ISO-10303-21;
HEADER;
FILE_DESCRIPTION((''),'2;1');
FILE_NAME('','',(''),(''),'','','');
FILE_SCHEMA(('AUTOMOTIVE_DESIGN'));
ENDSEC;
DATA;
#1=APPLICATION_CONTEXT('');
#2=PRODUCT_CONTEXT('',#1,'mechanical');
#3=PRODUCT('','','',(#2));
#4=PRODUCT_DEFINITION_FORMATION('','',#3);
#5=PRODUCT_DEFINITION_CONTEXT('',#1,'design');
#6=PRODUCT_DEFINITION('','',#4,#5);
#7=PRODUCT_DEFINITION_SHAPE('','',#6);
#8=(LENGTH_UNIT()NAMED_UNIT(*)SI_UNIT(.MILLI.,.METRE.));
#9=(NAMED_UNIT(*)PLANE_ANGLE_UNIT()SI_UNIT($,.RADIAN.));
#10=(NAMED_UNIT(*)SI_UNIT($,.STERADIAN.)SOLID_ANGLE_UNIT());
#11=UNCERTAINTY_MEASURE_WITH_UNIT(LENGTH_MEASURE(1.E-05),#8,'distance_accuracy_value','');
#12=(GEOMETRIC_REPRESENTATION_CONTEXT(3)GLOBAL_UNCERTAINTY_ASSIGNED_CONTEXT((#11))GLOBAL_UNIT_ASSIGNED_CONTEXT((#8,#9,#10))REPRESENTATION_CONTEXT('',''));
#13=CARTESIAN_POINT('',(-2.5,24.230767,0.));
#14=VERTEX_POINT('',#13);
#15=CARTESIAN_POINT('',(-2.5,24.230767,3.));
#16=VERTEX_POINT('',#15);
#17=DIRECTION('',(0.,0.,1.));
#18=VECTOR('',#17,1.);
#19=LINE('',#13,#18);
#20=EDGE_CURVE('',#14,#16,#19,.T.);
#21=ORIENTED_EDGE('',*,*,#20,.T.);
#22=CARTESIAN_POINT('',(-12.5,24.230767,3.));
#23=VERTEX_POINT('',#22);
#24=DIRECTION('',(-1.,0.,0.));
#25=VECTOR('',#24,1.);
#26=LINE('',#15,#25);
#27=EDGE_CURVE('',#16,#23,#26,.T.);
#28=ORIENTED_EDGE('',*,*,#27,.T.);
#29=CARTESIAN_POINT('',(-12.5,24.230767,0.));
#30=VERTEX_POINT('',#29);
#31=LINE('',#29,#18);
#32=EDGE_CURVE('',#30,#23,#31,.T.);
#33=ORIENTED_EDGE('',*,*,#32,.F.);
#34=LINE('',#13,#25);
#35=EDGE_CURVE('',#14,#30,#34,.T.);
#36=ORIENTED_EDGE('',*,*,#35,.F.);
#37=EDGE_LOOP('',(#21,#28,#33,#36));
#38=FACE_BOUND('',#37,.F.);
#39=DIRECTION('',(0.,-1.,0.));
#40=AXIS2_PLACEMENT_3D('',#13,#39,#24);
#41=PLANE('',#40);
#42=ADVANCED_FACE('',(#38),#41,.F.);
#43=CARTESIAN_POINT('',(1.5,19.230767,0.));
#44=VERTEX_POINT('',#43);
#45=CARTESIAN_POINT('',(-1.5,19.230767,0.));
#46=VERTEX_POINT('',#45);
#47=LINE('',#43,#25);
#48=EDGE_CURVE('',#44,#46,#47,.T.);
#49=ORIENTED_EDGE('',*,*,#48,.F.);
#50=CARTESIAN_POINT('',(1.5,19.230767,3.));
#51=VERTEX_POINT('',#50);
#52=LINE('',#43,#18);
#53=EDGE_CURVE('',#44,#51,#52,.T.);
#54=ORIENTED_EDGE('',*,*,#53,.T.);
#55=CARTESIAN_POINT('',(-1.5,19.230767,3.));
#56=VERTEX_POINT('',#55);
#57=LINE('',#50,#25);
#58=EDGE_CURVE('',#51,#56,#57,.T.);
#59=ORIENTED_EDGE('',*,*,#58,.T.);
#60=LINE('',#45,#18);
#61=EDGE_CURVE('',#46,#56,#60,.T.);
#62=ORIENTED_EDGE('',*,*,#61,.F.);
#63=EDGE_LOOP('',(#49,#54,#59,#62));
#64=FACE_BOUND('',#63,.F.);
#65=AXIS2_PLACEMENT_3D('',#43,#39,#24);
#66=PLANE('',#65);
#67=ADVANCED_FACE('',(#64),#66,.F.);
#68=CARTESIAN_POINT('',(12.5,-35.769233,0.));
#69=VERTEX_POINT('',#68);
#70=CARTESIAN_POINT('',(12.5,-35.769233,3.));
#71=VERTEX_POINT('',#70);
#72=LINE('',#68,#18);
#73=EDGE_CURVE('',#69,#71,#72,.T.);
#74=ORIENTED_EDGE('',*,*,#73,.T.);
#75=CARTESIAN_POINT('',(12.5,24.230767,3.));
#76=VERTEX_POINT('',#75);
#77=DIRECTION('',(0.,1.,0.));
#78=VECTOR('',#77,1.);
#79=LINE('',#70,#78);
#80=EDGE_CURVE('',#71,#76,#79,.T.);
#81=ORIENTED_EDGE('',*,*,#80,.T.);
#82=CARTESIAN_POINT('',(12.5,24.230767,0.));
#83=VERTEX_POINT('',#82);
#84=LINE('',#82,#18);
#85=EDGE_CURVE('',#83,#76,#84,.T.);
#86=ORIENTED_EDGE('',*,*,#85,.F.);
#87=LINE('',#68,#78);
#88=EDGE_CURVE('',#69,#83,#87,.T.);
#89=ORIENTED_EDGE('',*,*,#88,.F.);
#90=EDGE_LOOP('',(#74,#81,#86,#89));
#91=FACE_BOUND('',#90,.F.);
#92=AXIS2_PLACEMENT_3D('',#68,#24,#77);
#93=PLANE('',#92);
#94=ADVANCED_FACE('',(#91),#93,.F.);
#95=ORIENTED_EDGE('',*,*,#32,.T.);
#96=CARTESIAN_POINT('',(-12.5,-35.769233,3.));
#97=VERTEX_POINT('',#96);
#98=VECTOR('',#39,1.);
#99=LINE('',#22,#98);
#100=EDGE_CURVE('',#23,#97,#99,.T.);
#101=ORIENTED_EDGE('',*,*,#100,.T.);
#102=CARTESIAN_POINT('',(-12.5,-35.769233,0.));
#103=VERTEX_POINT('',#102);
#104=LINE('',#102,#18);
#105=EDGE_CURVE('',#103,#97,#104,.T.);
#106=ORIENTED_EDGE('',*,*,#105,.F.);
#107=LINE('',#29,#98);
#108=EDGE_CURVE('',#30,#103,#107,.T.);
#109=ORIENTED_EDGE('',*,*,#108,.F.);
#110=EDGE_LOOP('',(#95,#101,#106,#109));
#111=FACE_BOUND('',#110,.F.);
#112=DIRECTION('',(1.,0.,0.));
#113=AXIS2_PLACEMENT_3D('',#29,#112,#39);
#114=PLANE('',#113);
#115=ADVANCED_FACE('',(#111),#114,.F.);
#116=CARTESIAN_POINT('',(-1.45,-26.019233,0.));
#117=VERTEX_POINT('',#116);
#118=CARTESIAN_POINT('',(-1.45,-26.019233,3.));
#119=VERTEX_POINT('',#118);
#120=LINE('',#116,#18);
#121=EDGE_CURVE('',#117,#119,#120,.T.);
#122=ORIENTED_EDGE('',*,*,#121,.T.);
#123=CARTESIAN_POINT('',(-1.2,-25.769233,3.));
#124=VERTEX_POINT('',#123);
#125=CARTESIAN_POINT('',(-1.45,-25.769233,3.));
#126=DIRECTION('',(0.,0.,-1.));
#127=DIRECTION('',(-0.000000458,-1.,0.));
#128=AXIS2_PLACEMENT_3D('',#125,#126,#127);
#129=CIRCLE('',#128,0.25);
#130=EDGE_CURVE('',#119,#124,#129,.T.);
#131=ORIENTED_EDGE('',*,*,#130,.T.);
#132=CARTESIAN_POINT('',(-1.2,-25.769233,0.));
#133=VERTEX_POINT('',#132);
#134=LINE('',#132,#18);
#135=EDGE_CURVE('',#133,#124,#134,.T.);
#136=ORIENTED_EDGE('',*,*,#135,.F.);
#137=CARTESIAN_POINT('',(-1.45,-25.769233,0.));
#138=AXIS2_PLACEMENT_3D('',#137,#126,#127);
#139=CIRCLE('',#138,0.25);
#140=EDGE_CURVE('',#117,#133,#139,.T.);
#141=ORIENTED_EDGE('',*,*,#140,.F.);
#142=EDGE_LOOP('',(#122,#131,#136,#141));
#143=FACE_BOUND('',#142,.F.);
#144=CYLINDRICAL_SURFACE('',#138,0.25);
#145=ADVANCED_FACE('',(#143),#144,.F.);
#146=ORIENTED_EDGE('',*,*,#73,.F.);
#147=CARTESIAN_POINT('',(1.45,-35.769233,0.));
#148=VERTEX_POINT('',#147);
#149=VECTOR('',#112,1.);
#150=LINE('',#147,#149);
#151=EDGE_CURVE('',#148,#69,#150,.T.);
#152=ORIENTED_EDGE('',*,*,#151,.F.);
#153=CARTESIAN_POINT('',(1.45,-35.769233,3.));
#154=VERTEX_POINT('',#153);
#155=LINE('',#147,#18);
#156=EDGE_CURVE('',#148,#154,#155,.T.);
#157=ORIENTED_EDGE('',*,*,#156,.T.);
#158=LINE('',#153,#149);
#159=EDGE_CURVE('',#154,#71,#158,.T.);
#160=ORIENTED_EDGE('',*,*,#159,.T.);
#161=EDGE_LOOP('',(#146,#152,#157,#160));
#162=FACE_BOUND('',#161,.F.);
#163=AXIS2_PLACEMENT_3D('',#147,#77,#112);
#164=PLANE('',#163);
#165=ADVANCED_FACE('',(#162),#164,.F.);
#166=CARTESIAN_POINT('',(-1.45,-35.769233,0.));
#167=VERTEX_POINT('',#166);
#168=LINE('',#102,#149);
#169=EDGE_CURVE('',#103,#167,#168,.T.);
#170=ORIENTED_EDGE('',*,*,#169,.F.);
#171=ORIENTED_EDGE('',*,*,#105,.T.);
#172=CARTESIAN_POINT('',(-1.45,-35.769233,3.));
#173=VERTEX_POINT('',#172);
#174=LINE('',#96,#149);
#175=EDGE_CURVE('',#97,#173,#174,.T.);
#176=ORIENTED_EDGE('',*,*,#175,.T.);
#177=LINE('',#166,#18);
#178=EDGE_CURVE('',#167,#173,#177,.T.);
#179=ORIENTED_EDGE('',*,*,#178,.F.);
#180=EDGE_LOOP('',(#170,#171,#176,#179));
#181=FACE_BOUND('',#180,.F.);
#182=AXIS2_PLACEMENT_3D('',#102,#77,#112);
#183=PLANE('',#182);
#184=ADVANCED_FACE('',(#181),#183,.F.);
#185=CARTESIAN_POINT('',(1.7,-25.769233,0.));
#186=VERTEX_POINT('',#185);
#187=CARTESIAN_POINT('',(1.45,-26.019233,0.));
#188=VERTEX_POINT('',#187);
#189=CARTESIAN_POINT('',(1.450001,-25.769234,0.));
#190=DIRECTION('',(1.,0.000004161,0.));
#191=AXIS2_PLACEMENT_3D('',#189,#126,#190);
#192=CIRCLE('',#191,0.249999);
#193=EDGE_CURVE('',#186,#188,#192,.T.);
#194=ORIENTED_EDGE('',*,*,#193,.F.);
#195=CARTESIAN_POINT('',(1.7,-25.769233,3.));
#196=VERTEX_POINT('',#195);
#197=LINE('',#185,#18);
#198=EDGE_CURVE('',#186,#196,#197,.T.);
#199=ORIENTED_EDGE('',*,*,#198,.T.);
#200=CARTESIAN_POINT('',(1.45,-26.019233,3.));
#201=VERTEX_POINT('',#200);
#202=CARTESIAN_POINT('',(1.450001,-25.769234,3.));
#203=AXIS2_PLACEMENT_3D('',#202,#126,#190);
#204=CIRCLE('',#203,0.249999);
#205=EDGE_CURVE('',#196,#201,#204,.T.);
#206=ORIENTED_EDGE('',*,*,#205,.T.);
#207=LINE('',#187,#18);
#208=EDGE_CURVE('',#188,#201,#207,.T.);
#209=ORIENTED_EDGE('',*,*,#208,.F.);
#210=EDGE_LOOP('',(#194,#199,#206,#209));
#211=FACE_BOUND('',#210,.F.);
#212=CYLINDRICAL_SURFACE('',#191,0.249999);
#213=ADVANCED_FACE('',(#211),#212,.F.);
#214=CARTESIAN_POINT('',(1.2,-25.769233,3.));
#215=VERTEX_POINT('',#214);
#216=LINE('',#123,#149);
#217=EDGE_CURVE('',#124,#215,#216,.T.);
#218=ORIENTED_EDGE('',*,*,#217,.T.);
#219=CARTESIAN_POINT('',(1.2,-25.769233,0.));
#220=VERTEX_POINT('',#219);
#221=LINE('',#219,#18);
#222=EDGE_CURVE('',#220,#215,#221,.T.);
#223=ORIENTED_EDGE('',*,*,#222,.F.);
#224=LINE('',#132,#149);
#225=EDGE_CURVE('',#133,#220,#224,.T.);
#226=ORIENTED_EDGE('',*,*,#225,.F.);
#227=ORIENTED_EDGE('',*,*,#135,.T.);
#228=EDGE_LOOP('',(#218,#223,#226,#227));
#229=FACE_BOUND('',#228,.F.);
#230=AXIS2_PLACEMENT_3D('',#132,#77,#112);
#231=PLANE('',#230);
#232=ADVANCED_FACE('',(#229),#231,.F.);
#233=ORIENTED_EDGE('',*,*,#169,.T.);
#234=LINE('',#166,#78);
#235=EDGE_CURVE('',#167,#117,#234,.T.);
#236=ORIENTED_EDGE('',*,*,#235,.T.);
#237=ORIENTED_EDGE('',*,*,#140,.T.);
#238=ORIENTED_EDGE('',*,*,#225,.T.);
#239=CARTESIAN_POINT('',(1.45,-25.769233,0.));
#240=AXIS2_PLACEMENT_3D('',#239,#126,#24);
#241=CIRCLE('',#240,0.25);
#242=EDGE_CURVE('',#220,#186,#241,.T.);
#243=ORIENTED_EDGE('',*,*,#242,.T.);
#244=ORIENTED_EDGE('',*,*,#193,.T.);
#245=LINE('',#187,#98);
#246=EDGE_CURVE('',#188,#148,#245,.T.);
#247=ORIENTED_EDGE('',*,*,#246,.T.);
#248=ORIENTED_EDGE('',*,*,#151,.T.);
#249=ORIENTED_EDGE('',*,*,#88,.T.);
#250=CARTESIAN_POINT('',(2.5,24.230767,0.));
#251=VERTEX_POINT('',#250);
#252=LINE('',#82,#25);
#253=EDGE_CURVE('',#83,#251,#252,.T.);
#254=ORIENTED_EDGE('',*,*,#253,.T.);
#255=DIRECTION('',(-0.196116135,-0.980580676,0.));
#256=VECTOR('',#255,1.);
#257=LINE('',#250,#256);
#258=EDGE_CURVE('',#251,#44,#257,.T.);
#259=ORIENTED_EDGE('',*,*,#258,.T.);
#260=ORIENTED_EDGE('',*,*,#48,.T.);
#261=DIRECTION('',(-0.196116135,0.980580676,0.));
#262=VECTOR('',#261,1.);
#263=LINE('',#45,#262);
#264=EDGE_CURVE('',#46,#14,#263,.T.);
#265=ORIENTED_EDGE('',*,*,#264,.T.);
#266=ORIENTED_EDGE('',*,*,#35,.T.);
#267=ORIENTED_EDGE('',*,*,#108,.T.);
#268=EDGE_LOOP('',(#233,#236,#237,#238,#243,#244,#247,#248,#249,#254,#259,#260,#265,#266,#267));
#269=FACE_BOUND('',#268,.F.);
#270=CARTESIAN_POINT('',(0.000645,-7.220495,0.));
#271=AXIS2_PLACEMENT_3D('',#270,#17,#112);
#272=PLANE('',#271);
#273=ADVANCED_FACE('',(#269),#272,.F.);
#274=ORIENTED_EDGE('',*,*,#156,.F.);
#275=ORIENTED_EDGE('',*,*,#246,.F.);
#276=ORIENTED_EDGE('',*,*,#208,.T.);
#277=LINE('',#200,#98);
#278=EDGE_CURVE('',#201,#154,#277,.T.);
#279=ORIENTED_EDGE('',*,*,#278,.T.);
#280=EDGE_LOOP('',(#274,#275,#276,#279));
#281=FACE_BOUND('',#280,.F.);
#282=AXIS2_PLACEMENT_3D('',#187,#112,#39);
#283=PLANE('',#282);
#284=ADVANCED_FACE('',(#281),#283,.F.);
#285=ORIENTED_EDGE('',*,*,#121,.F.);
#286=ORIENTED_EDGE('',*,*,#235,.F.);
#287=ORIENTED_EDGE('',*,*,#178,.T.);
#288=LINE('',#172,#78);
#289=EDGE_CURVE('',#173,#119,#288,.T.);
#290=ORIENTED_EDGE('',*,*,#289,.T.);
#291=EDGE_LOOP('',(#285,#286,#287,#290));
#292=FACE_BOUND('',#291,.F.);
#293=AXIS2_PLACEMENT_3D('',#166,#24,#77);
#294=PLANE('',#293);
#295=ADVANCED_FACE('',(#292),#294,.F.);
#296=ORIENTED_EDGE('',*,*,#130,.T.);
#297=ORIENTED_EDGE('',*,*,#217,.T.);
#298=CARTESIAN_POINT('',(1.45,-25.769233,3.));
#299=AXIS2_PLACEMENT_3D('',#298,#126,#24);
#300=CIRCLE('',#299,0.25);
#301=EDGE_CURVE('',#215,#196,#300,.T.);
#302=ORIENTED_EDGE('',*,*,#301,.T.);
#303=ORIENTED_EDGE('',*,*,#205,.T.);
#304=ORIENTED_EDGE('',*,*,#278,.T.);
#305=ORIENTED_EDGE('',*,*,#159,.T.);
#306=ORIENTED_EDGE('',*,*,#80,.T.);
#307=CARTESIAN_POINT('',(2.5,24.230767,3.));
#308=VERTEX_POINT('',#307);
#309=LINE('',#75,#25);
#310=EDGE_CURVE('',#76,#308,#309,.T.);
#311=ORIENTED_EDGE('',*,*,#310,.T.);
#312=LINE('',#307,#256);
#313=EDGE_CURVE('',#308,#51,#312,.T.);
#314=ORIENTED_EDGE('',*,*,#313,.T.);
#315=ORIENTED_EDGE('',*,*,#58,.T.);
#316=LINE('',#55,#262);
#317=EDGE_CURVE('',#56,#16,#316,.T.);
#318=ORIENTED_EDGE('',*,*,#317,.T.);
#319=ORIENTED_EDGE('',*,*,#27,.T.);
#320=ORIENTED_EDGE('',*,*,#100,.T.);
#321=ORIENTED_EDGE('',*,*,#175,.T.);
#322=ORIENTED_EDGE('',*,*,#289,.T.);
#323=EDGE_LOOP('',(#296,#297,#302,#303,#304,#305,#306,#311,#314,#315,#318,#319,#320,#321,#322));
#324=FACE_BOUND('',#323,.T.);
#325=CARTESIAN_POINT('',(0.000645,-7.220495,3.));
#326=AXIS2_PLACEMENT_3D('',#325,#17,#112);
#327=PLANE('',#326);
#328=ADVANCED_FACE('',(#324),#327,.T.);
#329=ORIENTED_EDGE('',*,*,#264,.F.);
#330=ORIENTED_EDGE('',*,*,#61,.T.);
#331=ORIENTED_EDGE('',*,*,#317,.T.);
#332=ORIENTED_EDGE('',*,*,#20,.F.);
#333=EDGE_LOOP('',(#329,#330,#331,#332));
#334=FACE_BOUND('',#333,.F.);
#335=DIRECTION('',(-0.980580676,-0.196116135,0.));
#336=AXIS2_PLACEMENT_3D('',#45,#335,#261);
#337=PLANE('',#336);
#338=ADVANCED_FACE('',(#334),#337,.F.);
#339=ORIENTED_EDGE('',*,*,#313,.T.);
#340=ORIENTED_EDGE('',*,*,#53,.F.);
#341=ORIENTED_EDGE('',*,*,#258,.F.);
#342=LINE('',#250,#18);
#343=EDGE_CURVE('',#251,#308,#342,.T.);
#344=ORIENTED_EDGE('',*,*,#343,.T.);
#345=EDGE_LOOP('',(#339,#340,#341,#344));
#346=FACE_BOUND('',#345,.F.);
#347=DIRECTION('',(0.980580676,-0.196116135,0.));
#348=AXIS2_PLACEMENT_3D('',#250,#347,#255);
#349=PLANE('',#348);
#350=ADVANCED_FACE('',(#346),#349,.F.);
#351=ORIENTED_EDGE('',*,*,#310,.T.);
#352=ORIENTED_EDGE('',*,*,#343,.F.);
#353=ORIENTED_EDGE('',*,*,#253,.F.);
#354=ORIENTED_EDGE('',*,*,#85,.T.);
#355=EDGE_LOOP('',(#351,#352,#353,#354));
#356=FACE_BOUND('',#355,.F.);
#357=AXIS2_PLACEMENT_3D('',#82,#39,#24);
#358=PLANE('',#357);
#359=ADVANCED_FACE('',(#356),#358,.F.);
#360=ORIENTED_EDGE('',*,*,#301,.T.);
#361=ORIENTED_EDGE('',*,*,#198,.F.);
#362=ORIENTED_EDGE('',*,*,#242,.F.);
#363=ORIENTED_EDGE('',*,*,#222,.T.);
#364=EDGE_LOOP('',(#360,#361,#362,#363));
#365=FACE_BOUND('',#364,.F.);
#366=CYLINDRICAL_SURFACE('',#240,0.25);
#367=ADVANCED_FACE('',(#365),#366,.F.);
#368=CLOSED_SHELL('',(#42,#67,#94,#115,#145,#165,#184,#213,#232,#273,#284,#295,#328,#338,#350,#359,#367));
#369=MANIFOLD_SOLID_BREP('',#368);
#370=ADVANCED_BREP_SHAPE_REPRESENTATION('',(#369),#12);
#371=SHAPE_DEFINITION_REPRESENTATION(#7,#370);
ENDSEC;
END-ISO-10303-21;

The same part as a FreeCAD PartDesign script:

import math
import FreeCAD as App
import Part
import Sketcher

doc = App.newDocument("Part")
body = doc.addObject("PartDesign::Body", "Body")

sketch1 = body.newObject("Sketcher::SketchObject", "Sketch")
sketch1.AttachmentSupport = (doc.getObject("XY_Plane"), [""])
sketch1.MapMode = "FlatFace"
sketch1.addGeometry(Part.LineSegment(App.Vector(-2.5, 24.23, 0), App.Vector(-12.5, 24.23, 0)), False)
sketch1.addGeometry(Part.LineSegment(App.Vector(-12.5, 24.23, 0), App.Vector(-12.5, -35.77, 0)), False)
sketch1.addGeometry(Part.LineSegment(App.Vector(-12.5, -35.77, 0), App.Vector(-1.45, -35.77, 0)), False)
sketch1.addGeometry(Part.LineSegment(App.Vector(-1.45, -35.77, 0), App.Vector(-1.45, -26.02, 0)), False)
sketch1.addGeometry(Part.ArcOfCircle(Part.Circle(App.Vector(-1.45, -25.77, 0), App.Vector(0, 0, 1), 0.25), math.radians(0), math.radians(270)), False)
sketch1.addGeometry(Part.LineSegment(App.Vector(-1.2, -25.77, 0), App.Vector(1.2, -25.77, 0)), False)
sketch1.addGeometry(Part.ArcOfCircle(Part.Circle(App.Vector(1.45, -25.77, 0), App.Vector(0, 0, 1), 0.25), math.radians(0), math.radians(180)), False)
sketch1.addGeometry(Part.ArcOfCircle(Part.Circle(App.Vector(1.45, -25.77, 0), App.Vector(0, 0, 1), 0.25), math.radians(-90), math.radians(0)), False)
sketch1.addGeometry(Part.LineSegment(App.Vector(1.45, -26.02, 0), App.Vector(1.45, -35.77, 0)), False)
sketch1.addGeometry(Part.LineSegment(App.Vector(1.45, -35.77, 0), App.Vector(12.5, -35.77, 0)), False)
sketch1.addGeometry(Part.LineSegment(App.Vector(12.5, -35.77, 0), App.Vector(12.5, 24.23, 0)), False)
sketch1.addGeometry(Part.LineSegment(App.Vector(12.5, 24.23, 0), App.Vector(2.5, 24.23, 0)), False)
sketch1.addGeometry(Part.LineSegment(App.Vector(2.5, 24.23, 0), App.Vector(1.5, 19.23, 0)), False)
sketch1.addGeometry(Part.LineSegment(App.Vector(1.5, 19.23, 0), App.Vector(-1.5, 19.23, 0)), False)
sketch1.addGeometry(Part.LineSegment(App.Vector(-1.5, 19.23, 0), App.Vector(-2.5, 24.23, 0)), False)
sketch1.addConstraint(Sketcher.Constraint("Coincident", 0, 2, 1, 1))
sketch1.addConstraint(Sketcher.Constraint("Coincident", 1, 2, 2, 1))
sketch1.addConstraint(Sketcher.Constraint("Coincident", 2, 2, 3, 1))
sketch1.addConstraint(Sketcher.Constraint("Coincident", 3, 2, 4, 2))
sketch1.addConstraint(Sketcher.Constraint("Coincident", 4, 1, 5, 1))
sketch1.addConstraint(Sketcher.Constraint("Coincident", 5, 2, 6, 2))
sketch1.addConstraint(Sketcher.Constraint("Coincident", 6, 1, 7, 2))
sketch1.addConstraint(Sketcher.Constraint("Coincident", 7, 1, 8, 1))
sketch1.addConstraint(Sketcher.Constraint("Coincident", 8, 2, 9, 1))
sketch1.addConstraint(Sketcher.Constraint("Coincident", 9, 2, 10, 1))
sketch1.addConstraint(Sketcher.Constraint("Coincident", 10, 2, 11, 1))
sketch1.addConstraint(Sketcher.Constraint("Coincident", 11, 2, 12, 1))
sketch1.addConstraint(Sketcher.Constraint("Coincident", 12, 2, 13, 1))
sketch1.addConstraint(Sketcher.Constraint("Coincident", 13, 2, 14, 1))
sketch1.addConstraint(Sketcher.Constraint("Coincident", 14, 2, 0, 1))
sketch1.addConstraint(Sketcher.Constraint("Horizontal", 0))
sketch1.addConstraint(Sketcher.Constraint("Vertical", 1))
sketch1.addConstraint(Sketcher.Constraint("Horizontal", 2))
sketch1.addConstraint(Sketcher.Constraint("Vertical", 3))
sketch1.addConstraint(Sketcher.Constraint("Horizontal", 5))
sketch1.addConstraint(Sketcher.Constraint("Vertical", 8))
sketch1.addConstraint(Sketcher.Constraint("Horizontal", 9))
sketch1.addConstraint(Sketcher.Constraint("Vertical", 10))
sketch1.addConstraint(Sketcher.Constraint("Horizontal", 11))
sketch1.addConstraint(Sketcher.Constraint("Horizontal", 13))
sketch1.addConstraint(Sketcher.Constraint("Coincident", 7, 3, 6, 3))
sketch1.addConstraint(Sketcher.Constraint("Equal", 4, 6))
sketch1.addConstraint(Sketcher.Constraint("Symmetric", 4, 3, 6, 3, -2))
sketch1.addConstraint(Sketcher.Constraint("Symmetric", 2, 2, 8, 2, -2))
sketch1.addConstraint(Sketcher.Constraint("Symmetric", 0, 2, 10, 2, -2))
sketch1.addConstraint(Sketcher.Constraint("Horizontal", 7, 3, 4, 1))
sketch1.addConstraint(Sketcher.Constraint("Horizontal", 5, 2, 6, 1))
sketch1.addConstraint(Sketcher.Constraint("Vertical", 4, 3, 2, 2))
sketch1.addConstraint(Sketcher.Constraint("Equal", 0, 11))
sketch1.addConstraint(Sketcher.Constraint("Equal", 12, 14))
sketch1.addConstraint(Sketcher.Constraint("DistanceX", 0, 2, 0, 1, 10.0))
sketch1.addConstraint(Sketcher.Constraint("DistanceX", 13, 2, 13, 1, 3.0))
sketch1.addConstraint(Sketcher.Constraint("DistanceY", 1, 2, 1, 1, 60.0))
sketch1.addConstraint(Sketcher.Constraint("Radius", 4, 0.25))
sketch1.addConstraint(Sketcher.Constraint("DistanceX", 5, 1, 5, 2, 2.4))
sketch1.addConstraint(Sketcher.Constraint("DistanceY", 4, 3, 0, 2, 50.0))
sketch1.addConstraint(Sketcher.Constraint("DistanceX", 0, 2, 10, 2, 25.0))
sketch1.addConstraint(Sketcher.Constraint("DistanceY", 12, 2, 11, 2, 5.0))
sketch1.addConstraint(Sketcher.Constraint("DistanceY", 4, 3, -1, 1, 25.769233))
pad1 = body.newObject("PartDesign::Pad", "Pad")
pad1.Profile = sketch1
pad1.Length = 3

doc.recompute()
